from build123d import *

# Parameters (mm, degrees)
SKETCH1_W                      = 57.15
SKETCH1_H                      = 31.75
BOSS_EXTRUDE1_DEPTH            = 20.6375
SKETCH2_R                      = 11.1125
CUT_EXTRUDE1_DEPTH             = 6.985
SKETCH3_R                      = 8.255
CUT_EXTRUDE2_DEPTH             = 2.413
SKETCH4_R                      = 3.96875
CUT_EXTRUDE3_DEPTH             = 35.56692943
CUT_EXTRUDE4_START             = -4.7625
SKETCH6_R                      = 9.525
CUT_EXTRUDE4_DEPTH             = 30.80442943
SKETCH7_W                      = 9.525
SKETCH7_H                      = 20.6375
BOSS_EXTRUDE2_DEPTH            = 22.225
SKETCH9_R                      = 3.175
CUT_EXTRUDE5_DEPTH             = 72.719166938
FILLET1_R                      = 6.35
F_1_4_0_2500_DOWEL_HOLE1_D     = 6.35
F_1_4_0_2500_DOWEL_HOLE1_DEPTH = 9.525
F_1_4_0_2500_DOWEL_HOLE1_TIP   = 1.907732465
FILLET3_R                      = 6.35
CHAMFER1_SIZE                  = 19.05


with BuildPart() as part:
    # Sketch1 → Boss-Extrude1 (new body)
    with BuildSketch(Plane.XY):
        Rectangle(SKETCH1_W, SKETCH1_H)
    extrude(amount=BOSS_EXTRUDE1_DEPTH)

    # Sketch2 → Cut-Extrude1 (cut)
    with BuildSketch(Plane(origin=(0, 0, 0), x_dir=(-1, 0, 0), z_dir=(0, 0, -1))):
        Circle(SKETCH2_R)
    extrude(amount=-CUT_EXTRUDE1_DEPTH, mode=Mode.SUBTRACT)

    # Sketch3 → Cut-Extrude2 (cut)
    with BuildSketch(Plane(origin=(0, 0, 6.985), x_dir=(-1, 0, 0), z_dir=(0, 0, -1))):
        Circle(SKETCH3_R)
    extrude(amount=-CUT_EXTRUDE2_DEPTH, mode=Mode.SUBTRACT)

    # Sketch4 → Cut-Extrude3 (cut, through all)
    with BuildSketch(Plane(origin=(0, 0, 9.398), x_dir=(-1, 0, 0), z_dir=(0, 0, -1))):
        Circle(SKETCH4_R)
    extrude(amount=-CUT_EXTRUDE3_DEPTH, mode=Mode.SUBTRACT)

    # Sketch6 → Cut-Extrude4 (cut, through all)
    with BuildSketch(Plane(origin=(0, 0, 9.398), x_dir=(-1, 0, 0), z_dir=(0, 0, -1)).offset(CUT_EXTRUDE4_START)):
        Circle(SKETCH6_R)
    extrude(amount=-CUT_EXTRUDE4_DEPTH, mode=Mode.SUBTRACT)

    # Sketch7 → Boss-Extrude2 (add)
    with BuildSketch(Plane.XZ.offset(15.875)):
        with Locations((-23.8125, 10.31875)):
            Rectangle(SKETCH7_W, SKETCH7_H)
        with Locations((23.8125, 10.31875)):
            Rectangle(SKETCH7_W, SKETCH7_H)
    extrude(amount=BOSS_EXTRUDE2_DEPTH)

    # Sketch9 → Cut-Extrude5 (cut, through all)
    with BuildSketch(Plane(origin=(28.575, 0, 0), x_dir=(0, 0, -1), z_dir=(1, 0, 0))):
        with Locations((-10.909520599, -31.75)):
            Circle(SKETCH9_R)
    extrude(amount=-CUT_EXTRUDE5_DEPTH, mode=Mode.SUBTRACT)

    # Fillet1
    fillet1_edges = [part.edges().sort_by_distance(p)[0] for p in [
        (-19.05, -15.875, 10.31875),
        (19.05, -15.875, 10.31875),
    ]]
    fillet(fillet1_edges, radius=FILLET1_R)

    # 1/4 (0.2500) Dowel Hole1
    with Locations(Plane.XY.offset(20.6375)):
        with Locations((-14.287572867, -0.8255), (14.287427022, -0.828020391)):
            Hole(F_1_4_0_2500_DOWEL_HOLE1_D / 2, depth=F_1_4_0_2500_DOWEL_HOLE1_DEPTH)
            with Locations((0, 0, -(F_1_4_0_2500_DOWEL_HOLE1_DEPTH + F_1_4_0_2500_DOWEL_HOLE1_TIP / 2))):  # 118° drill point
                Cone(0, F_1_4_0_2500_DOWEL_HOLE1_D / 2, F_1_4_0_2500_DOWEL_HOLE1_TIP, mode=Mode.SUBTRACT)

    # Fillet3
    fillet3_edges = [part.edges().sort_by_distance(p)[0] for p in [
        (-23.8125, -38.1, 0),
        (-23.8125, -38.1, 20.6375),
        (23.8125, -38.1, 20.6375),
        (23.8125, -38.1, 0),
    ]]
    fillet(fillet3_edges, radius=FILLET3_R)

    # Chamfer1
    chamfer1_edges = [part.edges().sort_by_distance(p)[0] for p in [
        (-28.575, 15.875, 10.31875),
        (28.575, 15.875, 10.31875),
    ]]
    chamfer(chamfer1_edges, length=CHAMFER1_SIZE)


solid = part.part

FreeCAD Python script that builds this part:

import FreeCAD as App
import Part
import Sketcher
from FreeCAD import Vector
Q = App.Units.Quantity


def edges_at(feature, points):
    """Names of the edges that pass closest to the given points."""
    edges = feature.Shape.Edges
    near = lambda p: min(range(len(edges)), key=lambda i: edges[i].distToShape(Part.Vertex(*p))[0])
    return sorted({f"Edge{near(p) + 1}" for p in points})

doc = App.newDocument("Part")
params = doc.addObject("Spreadsheet::Sheet", "Params")
for row, (alias, value) in enumerate([
    ("sketch1_width", "2.25 in"),
    ("sketch1_height", "1.25 in"),
    ("pad1_length", "0.8125 in"),
    ("sketch2_diameter", "0.875 in"),
    ("pocket1_length", "0.275 in"),
    ("sketch3_diameter", "0.65 in"),
    ("pocket2_length", "0.095 in"),
    ("sketch4_diameter", "0.3125 in"),
    ("sketch5_diameter", "0.75 in"),
    ("sketch6_width", "0.375 in"),
    ("sketch6_height", "0.8125 in"),
    ("pad2_length", "0.875 in"),
    ("sketch7_diameter", "0.25 in"),
    ("fillet_radius", "0.25 in"),
    ("sketch8_diameter", "0.25 in"),
    ("hole_diameter", "0.25 in"),
    ("hole_depth", "0.375 in"),
    ("fillet2_radius", "0.25 in"),
    ("chamfer_size", "0.75 in"),
], start=1):
    params.set(f"A{row}", alias)
    params.set(f"B{row}", "=" + value)
    params.setAlias(f"B{row}", alias)

body = doc.addObject("PartDesign::Body", "Body")

# Sketch on XY plane
sketch1 = doc.addObject("Sketcher::SketchObject", "Sketch")
body.addObject(sketch1)
sketch1.AttachmentSupport = (doc.XY_Plane, [""])
sketch1.MapMode = "FlatFace"
sketch1.addGeometry([
    Part.LineSegment(Vector(-28.575, 15.875, 0), Vector(-28.575, -15.875, 0)),
    Part.LineSegment(Vector(-28.575, -15.875, 0), Vector(28.575, -15.875, 0)),
    Part.LineSegment(Vector(28.575, -15.875, 0), Vector(28.575, 15.875, 0)),
    Part.LineSegment(Vector(28.575, 15.875, 0), Vector(-28.575, 15.875, 0)),
], False)
sketch1.addConstraint([
    Sketcher.Constraint("Coincident", 0, 2, 1, 1),
    Sketcher.Constraint("Coincident", 1, 2, 2, 1),
    Sketcher.Constraint("Coincident", 2, 2, 3, 1),
    Sketcher.Constraint("Coincident", 3, 2, 0, 1),
    Sketcher.Constraint("Vertical", 0),
    Sketcher.Constraint("Horizontal", 1),
    Sketcher.Constraint("Vertical", 2),
    Sketcher.Constraint("Horizontal", 3),
    Sketcher.Constraint("Symmetric", 0, 2, 2, 2, -1, 1),
    Sketcher.Constraint("DistanceX", 1, 1, 1, 2, Q("2.25 in")),
    Sketcher.Constraint("DistanceY", 0, 2, 0, 1, Q("1.25 in")),
])
sketch1.setExpression("Constraints[9]", "Params.sketch1_width")
sketch1.setExpression("Constraints[10]", "Params.sketch1_height")
pad1 = doc.addObject("PartDesign::Pad", "Pad")
body.addObject(pad1)
pad1.Profile = sketch1
pad1.setExpression("Length", "Params.pad1_length")

# Sketch on XY plane
sketch2 = doc.addObject("Sketcher::SketchObject", "Sketch001")
body.addObject(sketch2)
sketch2.AttachmentSupport = (doc.XY_Plane, [""])
sketch2.MapMode = "FlatFace"
sketch2.addGeometry(Part.Circle(Vector(0, 0, 0), Vector(0, 0, 1), 11.1125), False)
sketch2.addConstraint([
    Sketcher.Constraint("Coincident", 0, 3, -1, 1),
    Sketcher.Constraint("Diameter", 0, Q("0.875 in")),
])
sketch2.setExpression("Constraints[1]", "Params.sketch2_diameter")
pocket1 = doc.addObject("PartDesign::Pocket", "Pocket")
body.addObject(pocket1)
pocket1.Profile = sketch2
pocket1.setExpression("Length", "Params.pocket1_length")
pocket1.Reversed = True

# Sketch on XY plane
sketch3 = doc.addObject("Sketcher::SketchObject", "Sketch002")
body.addObject(sketch3)
sketch3.AttachmentSupport = (doc.XY_Plane, [""])
sketch3.MapMode = "FlatFace"
sketch3.AttachmentOffset = App.Placement(Vector(0, 0, 0.275 * 25.4), App.Rotation())
sketch3.addGeometry(Part.Circle(Vector(0, 0, 0), Vector(0, 0, 1), 8.255), False)
sketch3.addConstraint([
    Sketcher.Constraint("Coincident", 0, 3, -1, 1),
    Sketcher.Constraint("Diameter", 0, Q("0.65 in")),
])
sketch3.setExpression("Constraints[1]", "Params.sketch3_diameter")
pocket2 = doc.addObject("PartDesign::Pocket", "Pocket001")
body.addObject(pocket2)
pocket2.Profile = sketch3
pocket2.setExpression("Length", "Params.pocket2_length")
pocket2.Reversed = True

# Sketch on XY plane
sketch4 = doc.addObject("Sketcher::SketchObject", "Sketch003")
body.addObject(sketch4)
sketch4.AttachmentSupport = (doc.XY_Plane, [""])
sketch4.MapMode = "FlatFace"
sketch4.AttachmentOffset = App.Placement(Vector(0, 0, 0.37 * 25.4), App.Rotation())
sketch4.addGeometry(Part.Circle(Vector(0, 0, 0), Vector(0, 0, 1), 3.96875), False)
sketch4.addConstraint([
    Sketcher.Constraint("Coincident", 0, 3, -1, 1),
    Sketcher.Constraint("Diameter", 0, Q("0.3125 in")),
])
sketch4.setExpression("Constraints[1]", "Params.sketch4_diameter")
pocket3 = doc.addObject("PartDesign::Pocket", "Pocket002")
body.addObject(pocket3)
pocket3.Profile = sketch4
pocket3.Type = "ThroughAll"
pocket3.Reversed = True

# Sketch on XY plane
sketch5 = doc.addObject("Sketcher::SketchObject", "Sketch004")
body.addObject(sketch5)
sketch5.AttachmentSupport = (doc.XY_Plane, [""])
sketch5.MapMode = "FlatFace"
sketch5.AttachmentOffset = App.Placement(Vector(0, 0, 0.5575 * 25.4), App.Rotation())
sketch5.addGeometry(Part.Circle(Vector(0, 0, 0), Vector(0, 0, 1), 9.525), False)
sketch5.addConstraint([
    Sketcher.Constraint("Coincident", 0, 3, -1, 1),
    Sketcher.Constraint("Diameter", 0, Q("0.75 in")),
])
sketch5.setExpression("Constraints[1]", "Params.sketch5_diameter")
pocket4 = doc.addObject("PartDesign::Pocket", "Pocket003")
body.addObject(pocket4)
pocket4.Profile = sketch5
pocket4.Type = "ThroughAll"
pocket4.Reversed = True

# Sketch on XZ plane
sketch6 = doc.addObject("Sketcher::SketchObject", "Sketch005")
body.addObject(sketch6)
sketch6.AttachmentSupport = (doc.XZ_Plane, [""])
sketch6.MapMode = "FlatFace"
sketch6.AttachmentOffset = App.Placement(Vector(0, 0, 0.625 * 25.4), App.Rotation())
sketch6.addGeometry([
    Part.LineSegment(Vector(-28.575, 20.6375, 0), Vector(-28.575, 0, 0)),  # 0
    Part.LineSegment(Vector(-28.575, 0, 0), Vector(-19.05, 0, 0)),  # 1
    Part.LineSegment(Vector(-19.05, 0, 0), Vector(-19.05, 20.6375, 0)),  # 2
    Part.LineSegment(Vector(-19.05, 20.6375, 0), Vector(-28.575, 20.6375, 0)),  # 3
    Part.LineSegment(Vector(19.05, 20.6375, 0), Vector(19.05, 0, 0)),  # 4
    Part.LineSegment(Vector(19.05, 0, 0), Vector(28.575, 0, 0)),  # 5
    Part.LineSegment(Vector(28.575, 0, 0), Vector(28.575, 20.6375, 0)),  # 6
    Part.LineSegment(Vector(28.575, 20.6375, 0), Vector(19.05, 20.6375, 0)),  # 7
], False)
sketch6.addConstraint([
    Sketcher.Constraint("Coincident", 0, 2, 1, 1),
    Sketcher.Constraint("Coincident", 1, 2, 2, 1),
    Sketcher.Constraint("Coincident", 2, 2, 3, 1),
    Sketcher.Constraint("Coincident", 3, 2, 0, 1),
    Sketcher.Constraint("Coincident", 4, 2, 5, 1),
    Sketcher.Constraint("Coincident", 5, 2, 6, 1),
    Sketcher.Constraint("Coincident", 6, 2, 7, 1),
    Sketcher.Constraint("Coincident", 7, 2, 4, 1),
    Sketcher.Constraint("Vertical", 0),
    Sketcher.Constraint("Horizontal", 1),
    Sketcher.Constraint("Vertical", 2),
    Sketcher.Constraint("Horizontal", 3),
    Sketcher.Constraint("Vertical", 4),
    Sketcher.Constraint("Horizontal", 5),
    Sketcher.Constraint("Vertical", 6),
    Sketcher.Constraint("Horizontal", 7),
    Sketcher.Constraint("Symmetric", 1, 2, 4, 2, -1, 1),
    Sketcher.Constraint("Symmetric", 0, 2, 5, 2, -2),
    Sketcher.Constraint("Horizontal", 3, 2, 6, 2),
    Sketcher.Constraint("DistanceX", 1, 2, 4, 2, Q("1.5 in")),
    Sketcher.Constraint("DistanceX", 1, 1, 1, 2, Q("0.375 in")),
    Sketcher.Constraint("DistanceY", 0, 2, 0, 1, Q("0.8125 in")),
])
sketch6.setExpression("Constraints[20]", "Params.sketch6_width")
sketch6.setExpression("Constraints[21]", "Params.sketch6_height")
pad2 = doc.addObject("PartDesign::Pad", "Pad001")
body.addObject(pad2)
pad2.Profile = sketch6
pad2.setExpression("Length", "Params.pad2_length")

# Sketch on YZ plane
sketch7 = doc.addObject("Sketcher::SketchObject", "Sketch006")
body.addObject(sketch7)
sketch7.AttachmentSupport = (doc.YZ_Plane, [""])
sketch7.MapMode = "FlatFace"
sketch7.AttachmentOffset = App.Placement(Vector(0, 0, 1.125 * 25.4), App.Rotation())
sketch7.addGeometry(Part.Circle(Vector(-31.75, 10.909521, 0), Vector(0, 0, 1), 3.175), False)
sketch7.addConstraint([
    Sketcher.Constraint("Diameter", 0, Q("0.25 in")),
    Sketcher.Constraint("DistanceX", 0, 3, -1, 1, Q("1.25 in")),
    Sketcher.Constraint("DistanceY", -1, 1, 0, 3, Q("10.909521 mm")),
])
sketch7.setExpression("Constraints[0]", "Params.sketch7_diameter")
pocket5 = doc.addObject("PartDesign::Pocket", "Pocket004")
body.addObject(pocket5)
pocket5.Profile = sketch7
pocket5.Type = "ThroughAll"
doc.recompute()

fillet = doc.addObject("PartDesign::Fillet", "Fillet")
body.addObject(fillet)
fillet.Base = (pocket5, edges_at(pocket5, [(-19.05, -15.875, 10.319), (19.05, -15.875, 10.319)]))
fillet.setExpression("Radius", "Params.fillet_radius")

# Sketch on XY plane
sketch8 = doc.addObject("Sketcher::SketchObject", "Sketch007")
body.addObject(sketch8)
sketch8.AttachmentSupport = (doc.XY_Plane, [""])
sketch8.MapMode = "FlatFace"
sketch8.AttachmentOffset = App.Placement(Vector(0, 0, 0.8125 * 25.4), App.Rotation())
sketch8.addGeometry([
    Part.Circle(Vector(-14.287573, -0.8255, 0), Vector(0, 0, 1), 3.175),
    Part.Circle(Vector(14.287427, -0.82802, 0), Vector(0, 0, 1), 3.175),
], False)
sketch8.addConstraint([
    Sketcher.Constraint("Equal", 0, 1),
    Sketcher.Constraint("Diameter", 0, Q("0.25 in")),
    Sketcher.Constraint("DistanceX", 0, 3, 1, 3, Q("1.125 in")),
    Sketcher.Constraint("DistanceY", 0, 3, -1, 1, Q("0.0325 in")),
    Sketcher.Constraint("DistanceY", 1, 3, -1, 1, Q("0.82802 mm")),
    Sketcher.Constraint("DistanceX", 0, 3, -1, 1, Q("14.287573 mm")),
])
sketch8.setExpression("Constraints[1]", "Params.sketch8_diameter")
doc.recompute()
hole = doc.addObject("PartDesign::Hole", "Hole")
body.addObject(hole)
hole.Profile = sketch8
hole.ThreadType = "None"
hole.setExpression("Diameter", "Params.hole_diameter")
hole.DepthType = "Dimension"
hole.setExpression("Depth", "Params.hole_depth")
hole.DrillPoint = "Angled"
hole.DrillPointAngle = 118
doc.recompute()

fillet2 = doc.addObject("PartDesign::Fillet", "Fillet001")
body.addObject(fillet2)
fillet2.Base = (hole, edges_at(hole, [
    (-23.812, -38.1, 0),
    (-23.812, -38.1, 20.637),
    (23.812, -38.1, 20.637),
    (23.812, -38.1, 0),
]))
fillet2.setExpression("Radius", "Params.fillet2_radius")
doc.recompute()

chamfer = doc.addObject("PartDesign::Chamfer", "Chamfer")
body.addObject(chamfer)
chamfer.Base = (fillet2, edges_at(fillet2, [(-28.575, 15.875, 10.319), (28.575, 15.875, 10.319)]))
chamfer.setExpression("Size", "Params.chamfer_size")

doc.recompute()
